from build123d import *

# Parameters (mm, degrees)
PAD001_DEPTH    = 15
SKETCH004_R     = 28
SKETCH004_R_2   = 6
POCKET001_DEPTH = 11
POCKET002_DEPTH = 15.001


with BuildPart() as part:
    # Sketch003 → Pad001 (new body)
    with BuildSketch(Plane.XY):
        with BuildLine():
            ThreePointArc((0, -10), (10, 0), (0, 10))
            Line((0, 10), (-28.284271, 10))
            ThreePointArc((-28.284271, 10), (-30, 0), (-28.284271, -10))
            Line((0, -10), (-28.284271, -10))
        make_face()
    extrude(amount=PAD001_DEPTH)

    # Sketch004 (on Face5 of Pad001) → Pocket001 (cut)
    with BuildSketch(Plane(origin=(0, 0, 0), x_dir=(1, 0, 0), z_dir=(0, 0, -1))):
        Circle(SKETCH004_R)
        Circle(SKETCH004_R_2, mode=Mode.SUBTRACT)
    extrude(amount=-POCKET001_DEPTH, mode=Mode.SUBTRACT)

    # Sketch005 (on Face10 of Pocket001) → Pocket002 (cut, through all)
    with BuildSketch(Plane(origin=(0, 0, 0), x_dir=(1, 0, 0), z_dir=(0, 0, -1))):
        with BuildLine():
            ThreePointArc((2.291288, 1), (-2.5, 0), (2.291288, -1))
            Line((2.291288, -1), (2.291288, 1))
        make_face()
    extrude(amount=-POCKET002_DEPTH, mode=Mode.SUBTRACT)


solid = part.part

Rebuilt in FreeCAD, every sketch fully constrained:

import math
import FreeCAD as App
import Part
import Sketcher
from FreeCAD import Vector
Q = App.Units.Quantity

doc = App.newDocument("Part")
params = doc.addObject("Spreadsheet::Sheet", "Params")
for row, (alias, value) in enumerate([
    ("sketch1_radius", "10 mm"),
    ("pad1_length", "15 mm"),
    ("sketch2_diameter", "56 mm"),
    ("sketch2_diameter2", "12 mm"),
    ("pocket1_length", "11 mm"),
    ("sketch3_radius", "2.5 mm"),
    ("sketch3_height", "2 mm"),
], start=1):
    params.set(f"A{row}", alias)
    params.set(f"B{row}", "=" + value)
    params.setAlias(f"B{row}", alias)

body = doc.addObject("PartDesign::Body", "Body")

sketch1 = doc.addObject("Sketcher::SketchObject", "Sketch")
body.addObject(sketch1)
sketch1.AttachmentSupport = (doc.XY_Plane, [""])
sketch1.MapMode = "FlatFace"
sketch1.addGeometry(Part.ArcOfCircle(Part.Circle(Vector(0, 0, 0), Vector(0, 0, 1), 10), math.radians(-90), math.radians(90)), False)
sketch1.addGeometry(Part.LineSegment(Vector(0, 10, 0), Vector(-28, 10, 0)), False)
sketch1.addGeometry(Part.ArcOfCircle(Part.Circle(Vector(0, 0, 0), Vector(0, 0, 1), 30), math.radians(161), math.radians(199)), False)
sketch1.addGeometry(Part.LineSegment(Vector(-28, -10, 0), Vector(0, -10, 0)), False)
sketch1.addConstraint(Sketcher.Constraint("Tangent", 0, 2, 1, 1))
sketch1.addConstraint(Sketcher.Constraint("Coincident", 1, 2, 2, 1))
sketch1.addConstraint(Sketcher.Constraint("Coincident", 2, 2, 3, 1))
sketch1.addConstraint(Sketcher.Constraint("Tangent", 3, 2, 0, 1))
sketch1.addConstraint(Sketcher.Constraint("Horizontal", 1))
sketch1.addConstraint(Sketcher.Constraint("Horizontal", 3))
sketch1.addConstraint(Sketcher.Constraint("Coincident", 0, 3, -1, 1))
sketch1.addConstraint(Sketcher.Constraint("Coincident", 2, 3, -1, 1))
sketch1.addConstraint(Sketcher.Constraint("Radius", 0, Q("10 mm")))
sketch1.addConstraint(Sketcher.Constraint("Radius", 2, Q("29.999996 mm")))
sketch1.setExpression("Constraints[8]", "Params.sketch1_radius")
pad1 = doc.addObject("PartDesign::Pad", "Pad")
body.addObject(pad1)
pad1.Profile = sketch1
pad1.setExpression("Length", "Params.pad1_length")

sketch2 = doc.addObject("Sketcher::SketchObject", "Sketch001")
body.addObject(sketch2)
sketch2.AttachmentSupport = (doc.XY_Plane, [""])
sketch2.MapMode = "FlatFace"
sketch2.addGeometry(Part.Circle(Vector(0, 0, 0), Vector(0, 0, 1), 28), False)
sketch2.addGeometry(Part.Circle(Vector(0, 0, 0), Vector(0, 0, 1), 6), False)
sketch2.addConstraint(Sketcher.Constraint("Coincident", 0, 3, -1, 1))
sketch2.addConstraint(Sketcher.Constraint("Coincident", 1, 3, -1, 1))
sketch2.addConstraint(Sketcher.Constraint("Diameter", 0, Q("56 mm")))
sketch2.addConstraint(Sketcher.Constraint("Diameter", 1, Q("12 mm")))
sketch2.setExpression("Constraints[2]", "Params.sketch2_diameter")
sketch2.setExpression("Constraints[3]", "Params.sketch2_diameter2")
pocket1 = doc.addObject("PartDesign::Pocket", "Pocket")
body.addObject(pocket1)
pocket1.Profile = sketch2
pocket1.setExpression("Length", "Params.pocket1_length")
pocket1.Reversed = True

sketch3 = doc.addObject("Sketcher::SketchObject", "Sketch002")
body.addObject(sketch3)
sketch3.AttachmentSupport = (doc.XY_Plane, [""])
sketch3.MapMode = "FlatFace"
sketch3.addGeometry(Part.ArcOfCircle(Part.Circle(Vector(0, 0, 0), Vector(0, 0, 1), 2.5), math.radians(24), math.radians(336)), False)
sketch3.addGeometry(Part.LineSegment(Vector(2.3, 1, 0), Vector(2.3, -1, 0)), False)
sketch3.addConstraint(Sketcher.Constraint("Coincident", 0, 1, 1, 1))
sketch3.addConstraint(Sketcher.Constraint("Coincident", 1, 2, 0, 2))
sketch3.addConstraint(Sketcher.Constraint("Vertical", 1))
sketch3.addConstraint(Sketcher.Constraint("Coincident", 0, 3, -1, 1))
sketch3.addConstraint(Sketcher.Constraint("Radius", 0, Q("2.5 mm")))
sketch3.addConstraint(Sketcher.Constraint("DistanceY", 1, 2, 1, 1, Q("2 mm")))
sketch3.setExpression("Constraints[4]", "Params.sketch3_radius")
sketch3.setExpression("Constraints[5]", "Params.sketch3_height")
pocket2 = doc.addObject("PartDesign::Pocket", "Pocket001")
body.addObject(pocket2)
pocket2.Profile = sketch3
pocket2.Type = "ThroughAll"
pocket2.Reversed = True

doc.recompute()
